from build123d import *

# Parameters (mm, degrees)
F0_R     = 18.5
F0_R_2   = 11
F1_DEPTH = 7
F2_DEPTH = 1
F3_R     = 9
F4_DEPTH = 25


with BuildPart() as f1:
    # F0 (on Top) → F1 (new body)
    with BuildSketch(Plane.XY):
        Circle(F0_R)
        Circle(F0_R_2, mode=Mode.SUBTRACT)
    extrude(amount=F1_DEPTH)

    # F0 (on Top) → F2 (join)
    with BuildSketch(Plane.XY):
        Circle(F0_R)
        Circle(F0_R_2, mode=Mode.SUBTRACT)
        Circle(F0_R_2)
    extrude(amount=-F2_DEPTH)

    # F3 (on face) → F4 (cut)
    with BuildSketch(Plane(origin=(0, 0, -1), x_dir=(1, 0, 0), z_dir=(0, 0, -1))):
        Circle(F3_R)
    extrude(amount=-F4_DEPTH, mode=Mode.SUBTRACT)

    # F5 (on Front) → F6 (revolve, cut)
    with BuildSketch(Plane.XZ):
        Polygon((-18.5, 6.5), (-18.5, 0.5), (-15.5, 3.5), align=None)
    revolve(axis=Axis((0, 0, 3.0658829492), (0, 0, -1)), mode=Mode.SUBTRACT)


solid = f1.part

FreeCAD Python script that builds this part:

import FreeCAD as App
import Part
import Sketcher


def add_polygon(sketch, points):
    """Adds a closed chain of lines whose ends are joined by coincident constraints."""
    first, n = sketch.GeometryCount, len(points)
    for a, b in zip(points, points[1:] + points[:1]):
        sketch.addGeometry(Part.LineSegment(App.Vector(*a, 0), App.Vector(*b, 0)), False)
    for i in range(n):
        sketch.addConstraint(Sketcher.Constraint("Coincident", first + i, 2, first + (i + 1) % n, 1))

doc = App.newDocument("Part")
params = doc.addObject("Spreadsheet::Sheet", "Params")
for row, (alias, value) in enumerate([
    ("sketch1_diameter", "37 mm"),
    ("sketch1_diameter2", "22 mm"),
    ("pad1_length", "7 mm"),
    ("sketch2_diameter", "37 mm"),
    ("pad2_length", "1 mm"),
    ("sketch3_diameter", "18 mm"),
    ("pocket1_length", "25 mm"),
    ("sketch4_height", "6 mm"),
    ("groove_angle", "360 deg"),
], start=1):
    params.set(f"A{row}", alias)
    params.set(f"B{row}", "=" + value)
    params.setAlias(f"B{row}", alias)

body = doc.addObject("PartDesign::Body", "Body")

# Sketch on XY plane
sketch1 = body.newObject("Sketcher::SketchObject", "Sketch")
sketch1.AttachmentSupport = (doc.getObject("XY_Plane"), [""])
sketch1.MapMode = "FlatFace"
sketch1.addGeometry([
    Part.Circle(App.Vector(0, 0, 0), App.Vector(0, 0, 1), 18),
    Part.Circle(App.Vector(0, 0, 0), App.Vector(0, 0, 1), 11),
], False)
sketch1.addConstraint([
    Sketcher.Constraint("Coincident", 0, 3, -1, 1),
    Sketcher.Constraint("Coincident", 1, 3, -1, 1),
    Sketcher.Constraint("Diameter", 0, 37.0),
    Sketcher.Constraint("Diameter", 1, 22.0),
])
sketch1.setExpression("Constraints[2]", "Params.sketch1_diameter")
sketch1.setExpression("Constraints[3]", "Params.sketch1_diameter2")
pad1 = body.newObject("PartDesign::Pad", "Pad")
pad1.Profile = sketch1
pad1.setExpression("Length", "Params.pad1_length")

# Sketch on XY plane
sketch2 = body.newObject("Sketcher::SketchObject", "Sketch001")
sketch2.AttachmentSupport = (doc.getObject("XY_Plane"), [""])
sketch2.MapMode = "FlatFace"
sketch2.addGeometry(Part.Circle(App.Vector(0, 0, 0), App.Vector(0, 0, 1), 18), False)
sketch2.addConstraint([
    Sketcher.Constraint("Coincident", 0, 3, -1, 1),
    Sketcher.Constraint("Diameter", 0, 37.0),
])
sketch2.setExpression("Constraints[1]", "Params.sketch2_diameter")
pad2 = body.newObject("PartDesign::Pad", "Pad001")
pad2.Profile = sketch2
pad2.setExpression("Length", "Params.pad2_length")
pad2.Reversed = True

# Sketch on XY plane
sketch3 = body.newObject("Sketcher::SketchObject", "Sketch002")
sketch3.AttachmentSupport = (doc.getObject("XY_Plane"), [""])
sketch3.MapMode = "FlatFace"
sketch3.AttachmentOffset = App.Placement(App.Vector(0, 0, -1), App.Rotation())
sketch3.addGeometry(Part.Circle(App.Vector(0, 0, 0), App.Vector(0, 0, 1), 9), False)
sketch3.addConstraint([
    Sketcher.Constraint("Coincident", 0, 3, -1, 1),
    Sketcher.Constraint("Diameter", 0, 18.0),
])
sketch3.setExpression("Constraints[1]", "Params.sketch3_diameter")
pocket1 = body.newObject("PartDesign::Pocket", "Pocket")
pocket1.Profile = sketch3
pocket1.setExpression("Length", "Params.pocket1_length")
pocket1.Reversed = True

# Sketch on XZ plane
sketch4 = body.newObject("Sketcher::SketchObject", "Sketch003")
sketch4.AttachmentSupport = (doc.getObject("XZ_Plane"), [""])
sketch4.MapMode = "FlatFace"
add_polygon(sketch4, [(-18.5, 6.5), (-18.5, 0.5), (-15.5, 3.5)])  # lines 0-2
sketch4.addConstraint([
    Sketcher.Constraint("Vertical", 0),
    Sketcher.Constraint("Perpendicular", 1, 2),
    Sketcher.Constraint("Equal", 1, 2),
    Sketcher.Constraint("DistanceY", 0, 2, 0, 1, 6.0),
    Sketcher.Constraint("DistanceX", 0, 2, -1, 1, 18.5),
    Sketcher.Constraint("DistanceY", -1, 1, 0, 2, 0.5),
])
sketch4.setExpression("Constraints[6]", "Params.sketch4_height")
groove = body.newObject("PartDesign::Groove", "Groove")
groove.Profile = sketch4
groove.ReferenceAxis = (sketch4, ["V_Axis"])
groove.setExpression("Angle", "Params.groove_angle")

doc.recompute()
